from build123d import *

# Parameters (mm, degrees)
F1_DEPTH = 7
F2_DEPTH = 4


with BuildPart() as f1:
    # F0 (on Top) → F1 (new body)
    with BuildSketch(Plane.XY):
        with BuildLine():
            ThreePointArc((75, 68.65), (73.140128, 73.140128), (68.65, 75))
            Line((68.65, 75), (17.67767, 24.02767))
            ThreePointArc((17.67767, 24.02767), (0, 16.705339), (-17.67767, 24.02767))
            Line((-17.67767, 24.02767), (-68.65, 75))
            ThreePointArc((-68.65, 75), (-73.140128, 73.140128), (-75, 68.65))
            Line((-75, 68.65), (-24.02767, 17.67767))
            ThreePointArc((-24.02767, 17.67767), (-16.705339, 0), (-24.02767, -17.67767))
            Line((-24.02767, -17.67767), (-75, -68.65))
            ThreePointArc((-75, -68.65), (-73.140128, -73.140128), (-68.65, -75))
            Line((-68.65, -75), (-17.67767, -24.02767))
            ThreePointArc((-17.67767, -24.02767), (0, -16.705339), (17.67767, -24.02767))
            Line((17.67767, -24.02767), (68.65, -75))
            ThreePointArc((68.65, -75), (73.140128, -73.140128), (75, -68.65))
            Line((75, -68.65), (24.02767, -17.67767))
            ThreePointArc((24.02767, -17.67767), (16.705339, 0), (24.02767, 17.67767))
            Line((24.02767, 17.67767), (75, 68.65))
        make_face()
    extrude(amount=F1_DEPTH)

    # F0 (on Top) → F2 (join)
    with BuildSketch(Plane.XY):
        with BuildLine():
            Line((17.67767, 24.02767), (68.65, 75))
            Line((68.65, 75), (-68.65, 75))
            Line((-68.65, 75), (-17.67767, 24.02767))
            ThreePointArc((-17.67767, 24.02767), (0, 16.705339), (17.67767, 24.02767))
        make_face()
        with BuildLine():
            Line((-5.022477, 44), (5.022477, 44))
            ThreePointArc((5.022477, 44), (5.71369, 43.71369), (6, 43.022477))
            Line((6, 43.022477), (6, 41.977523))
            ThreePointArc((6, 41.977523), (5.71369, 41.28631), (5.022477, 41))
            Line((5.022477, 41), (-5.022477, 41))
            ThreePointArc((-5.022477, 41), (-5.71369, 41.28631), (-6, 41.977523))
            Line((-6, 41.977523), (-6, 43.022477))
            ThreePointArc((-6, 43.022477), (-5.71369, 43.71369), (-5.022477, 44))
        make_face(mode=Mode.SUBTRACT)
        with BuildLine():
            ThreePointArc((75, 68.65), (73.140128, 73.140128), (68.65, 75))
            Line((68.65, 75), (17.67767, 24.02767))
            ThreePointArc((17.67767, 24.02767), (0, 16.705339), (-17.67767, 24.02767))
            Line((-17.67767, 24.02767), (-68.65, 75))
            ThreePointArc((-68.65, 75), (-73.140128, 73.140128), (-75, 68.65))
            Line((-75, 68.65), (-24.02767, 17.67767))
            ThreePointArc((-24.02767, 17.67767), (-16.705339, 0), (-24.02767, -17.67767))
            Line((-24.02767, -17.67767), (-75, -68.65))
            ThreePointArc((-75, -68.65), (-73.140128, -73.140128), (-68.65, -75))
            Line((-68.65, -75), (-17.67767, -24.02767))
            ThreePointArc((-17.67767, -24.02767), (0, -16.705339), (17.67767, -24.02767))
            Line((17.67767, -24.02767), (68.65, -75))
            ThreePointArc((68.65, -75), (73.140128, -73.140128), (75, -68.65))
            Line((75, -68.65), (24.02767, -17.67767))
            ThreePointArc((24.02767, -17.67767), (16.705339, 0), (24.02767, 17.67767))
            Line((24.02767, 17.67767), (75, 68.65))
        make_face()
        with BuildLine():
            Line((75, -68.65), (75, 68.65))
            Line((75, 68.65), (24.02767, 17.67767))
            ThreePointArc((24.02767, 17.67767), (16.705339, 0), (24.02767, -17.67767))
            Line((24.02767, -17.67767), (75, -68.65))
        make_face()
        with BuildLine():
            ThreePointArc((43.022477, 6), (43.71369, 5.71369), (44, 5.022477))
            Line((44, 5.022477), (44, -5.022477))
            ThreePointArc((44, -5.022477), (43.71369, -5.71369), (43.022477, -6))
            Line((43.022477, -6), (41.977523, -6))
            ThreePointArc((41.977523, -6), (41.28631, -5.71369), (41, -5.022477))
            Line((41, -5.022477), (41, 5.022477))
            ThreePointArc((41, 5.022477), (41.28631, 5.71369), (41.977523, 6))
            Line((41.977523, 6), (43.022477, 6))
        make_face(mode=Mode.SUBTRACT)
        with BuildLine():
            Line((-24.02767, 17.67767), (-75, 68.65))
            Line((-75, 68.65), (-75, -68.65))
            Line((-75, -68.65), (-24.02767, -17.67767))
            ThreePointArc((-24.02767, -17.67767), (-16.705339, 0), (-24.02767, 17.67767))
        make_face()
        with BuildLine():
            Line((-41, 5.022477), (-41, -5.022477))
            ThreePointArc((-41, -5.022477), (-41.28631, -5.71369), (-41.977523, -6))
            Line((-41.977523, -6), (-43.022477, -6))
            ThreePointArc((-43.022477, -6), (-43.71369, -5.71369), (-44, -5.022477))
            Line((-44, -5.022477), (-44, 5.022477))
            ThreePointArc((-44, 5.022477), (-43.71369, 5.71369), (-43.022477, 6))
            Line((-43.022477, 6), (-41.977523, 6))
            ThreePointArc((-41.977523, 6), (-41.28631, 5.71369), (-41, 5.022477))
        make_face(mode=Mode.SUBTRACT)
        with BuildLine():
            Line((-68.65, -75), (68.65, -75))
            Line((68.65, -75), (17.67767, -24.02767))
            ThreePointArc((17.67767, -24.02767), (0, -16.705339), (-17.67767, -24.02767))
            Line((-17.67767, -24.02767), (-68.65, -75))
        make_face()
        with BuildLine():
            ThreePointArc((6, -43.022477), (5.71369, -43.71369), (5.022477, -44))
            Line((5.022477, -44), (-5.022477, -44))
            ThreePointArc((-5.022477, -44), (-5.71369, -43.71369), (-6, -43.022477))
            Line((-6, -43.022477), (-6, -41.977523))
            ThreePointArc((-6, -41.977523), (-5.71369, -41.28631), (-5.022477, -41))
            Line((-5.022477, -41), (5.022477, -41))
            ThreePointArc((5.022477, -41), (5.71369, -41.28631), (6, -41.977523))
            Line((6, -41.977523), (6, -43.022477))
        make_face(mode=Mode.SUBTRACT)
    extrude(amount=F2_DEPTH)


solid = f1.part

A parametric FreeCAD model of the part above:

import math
import FreeCAD as App
import Part
import Sketcher

doc = App.newDocument("Part")
body = doc.addObject("PartDesign::Body", "Body")

sketch1 = body.newObject("Sketcher::SketchObject", "Sketch")
sketch1.AttachmentSupport = (doc.getObject("XY_Plane"), [""])
sketch1.MapMode = "FlatFace"
sketch1.addGeometry([
    Part.ArcOfCircle(Part.Circle(App.Vector(69, 69, 0), App.Vector(0, 0, 1), 6), math.radians(0), math.radians(90)),
    Part.LineSegment(App.Vector(69, 75, 0), App.Vector(18, 24, 0)),
    Part.ArcOfCircle(Part.Circle(App.Vector(0, 42, 0), App.Vector(0, 0, 1), 25), math.radians(-135), math.radians(-45)),
    Part.LineSegment(App.Vector(-18, 24, 0), App.Vector(-69, 75, 0)),
    Part.ArcOfCircle(Part.Circle(App.Vector(-69, 69, 0), App.Vector(0, 0, 1), 6), math.radians(90), math.radians(180)),
    Part.LineSegment(App.Vector(-75, 69, 0), App.Vector(-24, 18, 0)),
    Part.ArcOfCircle(Part.Circle(App.Vector(-42, 0, 0), App.Vector(0, 0, 1), 25), math.radians(-45), math.radians(45)),
    Part.LineSegment(App.Vector(-24, -18, 0), App.Vector(-75, -69, 0)),
    Part.ArcOfCircle(Part.Circle(App.Vector(-69, -69, 0), App.Vector(0, 0, 1), 6), math.radians(-180), math.radians(-90)),
    Part.LineSegment(App.Vector(-69, -75, 0), App.Vector(-18, -24, 0)),
    Part.ArcOfCircle(Part.Circle(App.Vector(0, -42, 0), App.Vector(0, 0, 1), 25), math.radians(45), math.radians(135)),
    Part.LineSegment(App.Vector(18, -24, 0), App.Vector(69, -75, 0)),
    Part.ArcOfCircle(Part.Circle(App.Vector(69, -69, 0), App.Vector(0, 0, 1), 6), math.radians(-90), math.radians(0)),
    Part.LineSegment(App.Vector(75, -69, 0), App.Vector(24, -18, 0)),
    Part.ArcOfCircle(Part.Circle(App.Vector(42, 0, 0), App.Vector(0, 0, 1), 25), math.radians(135), math.radians(225)),
    Part.LineSegment(App.Vector(24, 18, 0), App.Vector(75, 69, 0)),
], False)
sketch1.addConstraint([
    Sketcher.Constraint("Coincident", 0, 2, 1, 1),
    Sketcher.Constraint("Tangent", 1, 2, 2, 2),
    Sketcher.Constraint("Tangent", 2, 1, 3, 1),
    Sketcher.Constraint("Coincident", 3, 2, 4, 1),
    Sketcher.Constraint("Coincident", 4, 2, 5, 1),
    Sketcher.Constraint("Tangent", 5, 2, 6, 2),
    Sketcher.Constraint("Tangent", 6, 1, 7, 1),
    Sketcher.Constraint("Coincident", 7, 2, 8, 1),
    Sketcher.Constraint("Coincident", 8, 2, 9, 1),
    Sketcher.Constraint("Tangent", 9, 2, 10, 2),
    Sketcher.Constraint("Tangent", 10, 1, 11, 1),
    Sketcher.Constraint("Coincident", 11, 2, 12, 1),
    Sketcher.Constraint("Coincident", 12, 2, 13, 1),
    Sketcher.Constraint("Tangent", 13, 2, 14, 2),
    Sketcher.Constraint("Tangent", 14, 1, 15, 1),
    Sketcher.Constraint("Coincident", 15, 2, 0, 1),
    Sketcher.Constraint("Equal", 0, 4),
    Sketcher.Constraint("Equal", 2, 6),
    Sketcher.Constraint("Equal", 4, 8),
    Sketcher.Constraint("Equal", 6, 10),
    Sketcher.Constraint("Equal", 8, 12),
    Sketcher.Constraint("Equal", 10, 14),
    Sketcher.Constraint("Symmetric", 0, 3, 8, 3, -1, 1),
    Sketcher.Constraint("Symmetric", 2, 3, 10, 3, -1, 1),
    Sketcher.Constraint("Symmetric", 4, 3, 12, 3, -1, 1),
    Sketcher.Constraint("Symmetric", 6, 3, 14, 3, -1, 1),
    Sketcher.Constraint("Symmetric", 0, 3, 4, 3, -2),
    Sketcher.Constraint("Symmetric", 1, 2, 2, 1, -2),
    Sketcher.Constraint("Symmetric", 6, 1, 13, 2, -2),
    Sketcher.Constraint("Perpendicular", 1, 3),
    Sketcher.Constraint("Parallel", 3, 5),
    Sketcher.Constraint("Perpendicular", 5, 7),
    Sketcher.Constraint("Parallel", 7, 9),
    Sketcher.Constraint("Perpendicular", 9, 11),
    Sketcher.Constraint("Perpendicular", 13, 15),
    Sketcher.Constraint("Horizontal", 0, 3, 4, 2),
    Sketcher.Constraint("Vertical", 12, 3, 0, 2),
    Sketcher.Constraint("Equal", 3, 5),
    Sketcher.Constraint("Radius", 2, 25.0),
    Sketcher.Constraint("Radius", 0, 6.35),
    Sketcher.Constraint("DistanceY", -1, 1, 0, 2, 75.0),
])
pad1 = body.newObject("PartDesign::Pad", "Pad")
pad1.Profile = sketch1
pad1.Length = 7

sketch2 = body.newObject("Sketcher::SketchObject", "Sketch001")
sketch2.AttachmentSupport = (doc.getObject("XY_Plane"), [""])
sketch2.MapMode = "FlatFace"
sketch2.addGeometry([
    Part.LineSegment(App.Vector(68.7, 75, 0), App.Vector(-68.7, 75, 0)),
    Part.ArcOfCircle(Part.Circle(App.Vector(-68.6, 68.6, 0), App.Vector(0, 0, 1), 6.4), math.radians(90), math.radians(180)),
    Part.LineSegment(App.Vector(-75, 68.7, 0), App.Vector(-75, -68.7, 0)),
    Part.ArcOfCircle(Part.Circle(App.Vector(-68.6, -68.6, 0), App.Vector(0, 0, 1), 6.4), math.radians(-180), math.radians(-90)),
    Part.LineSegment(App.Vector(-68.7, -75, 0), App.Vector(68.7, -75, 0)),
    Part.ArcOfCircle(Part.Circle(App.Vector(68.6, -68.6, 0), App.Vector(0, 0, 1), 6.4), math.radians(-90), math.radians(0)),
    Part.LineSegment(App.Vector(75, -68.7, 0), App.Vector(75, 68.7, 0)),
    Part.ArcOfCircle(Part.Circle(App.Vector(68.6, 68.6, 0), App.Vector(0, 0, 1), 6.4), math.radians(0), math.radians(90)),
    Part.LineSegment(App.Vector(6, -42, 0), App.Vector(6, -43, 0)),
    Part.ArcOfCircle(Part.Circle(App.Vector(5, -43, 0), App.Vector(0, 0, 1), 1), math.radians(-90), math.radians(0)),
    Part.LineSegment(App.Vector(5, -44, 0), App.Vector(-5, -44, 0)),
    Part.ArcOfCircle(Part.Circle(App.Vector(-5, -43, 0), App.Vector(0, 0, 1), 1), math.radians(-180), math.radians(-90)),
    Part.LineSegment(App.Vector(-6, -43, 0), App.Vector(-6, -42, 0)),
    Part.ArcOfCircle(Part.Circle(App.Vector(-5, -42, 0), App.Vector(0, 0, 1), 1), math.radians(90), math.radians(180)),
    Part.LineSegment(App.Vector(-5, -41, 0), App.Vector(5, -41, 0)),
    Part.ArcOfCircle(Part.Circle(App.Vector(5, -42, 0), App.Vector(0, 0, 1), 1), math.radians(0), math.radians(90)),
    Part.ArcOfCircle(Part.Circle(App.Vector(-42, 5, 0), App.Vector(0, 0, 1), 1), math.radians(0), math.radians(90)),
    Part.LineSegment(App.Vector(-41, 5, 0), App.Vector(-41, -5, 0)),
    Part.ArcOfCircle(Part.Circle(App.Vector(-42, -5, 0), App.Vector(0, 0, 1), 1), math.radians(-90), math.radians(0)),
    Part.LineSegment(App.Vector(-42, -6, 0), App.Vector(-43, -6, 0)),
    Part.ArcOfCircle(Part.Circle(App.Vector(-43, -5, 0), App.Vector(0, 0, 1), 1), math.radians(-180), math.radians(-90)),
    Part.LineSegment(App.Vector(-44, -5, 0), App.Vector(-44, 5, 0)),
    Part.ArcOfCircle(Part.Circle(App.Vector(-43, 5, 0), App.Vector(0, 0, 1), 1), math.radians(90), math.radians(180)),
    Part.LineSegment(App.Vector(-43, 6, 0), App.Vector(-42, 6, 0)),
    Part.LineSegment(App.Vector(42, 6, 0), App.Vector(43, 6, 0)),
    Part.ArcOfCircle(Part.Circle(App.Vector(43, 5, 0), App.Vector(0, 0, 1), 1), math.radians(0), math.radians(90)),
    Part.LineSegment(App.Vector(44, 5, 0), App.Vector(44, -5, 0)),
    Part.ArcOfCircle(Part.Circle(App.Vector(43, -5, 0), App.Vector(0, 0, 1), 1), math.radians(-90), math.radians(0)),
    Part.LineSegment(App.Vector(43, -6, 0), App.Vector(42, -6, 0)),
    Part.ArcOfCircle(Part.Circle(App.Vector(42, -5, 0), App.Vector(0, 0, 1), 1), math.radians(-180), math.radians(-90)),
    Part.LineSegment(App.Vector(41, -5, 0), App.Vector(41, 5, 0)),
    Part.ArcOfCircle(Part.Circle(App.Vector(42, 5, 0), App.Vector(0, 0, 1), 1), math.radians(90), math.radians(180)),
    Part.ArcOfCircle(Part.Circle(App.Vector(-5, 43, 0), App.Vector(0, 0, 1), 1), math.radians(90), math.radians(180)),
    Part.LineSegment(App.Vector(-5, 44, 0), App.Vector(5, 44, 0)),
    Part.ArcOfCircle(Part.Circle(App.Vector(5, 43, 0), App.Vector(0, 0, 1), 1), math.radians(0), math.radians(90)),
    Part.LineSegment(App.Vector(6, 43, 0), App.Vector(6, 42, 0)),
    Part.ArcOfCircle(Part.Circle(App.Vector(5, 42, 0), App.Vector(0, 0, 1), 1), math.radians(-90), math.radians(0)),
    Part.LineSegment(App.Vector(5, 41, 0), App.Vector(-5, 41, 0)),
    Part.ArcOfCircle(Part.Circle(App.Vector(-5, 42, 0), App.Vector(0, 0, 1), 1), math.radians(-180), math.radians(-90)),
    Part.LineSegment(App.Vector(-6, 42, 0), App.Vector(-6, 43, 0)),
], False)
sketch2.addConstraint([
    Sketcher.Constraint("Tangent", 0, 2, 1, 1),
    Sketcher.Constraint("Tangent", 1, 2, 2, 1),
    Sketcher.Constraint("Tangent", 2, 2, 3, 1),
    Sketcher.Constraint("Tangent", 3, 2, 4, 1),
    Sketcher.Constraint("Tangent", 4, 2, 5, 1),
    Sketcher.Constraint("Tangent", 5, 2, 6, 1),
    Sketcher.Constraint("Tangent", 6, 2, 7, 1),
    Sketcher.Constraint("Tangent", 7, 2, 0, 1),
    Sketcher.Constraint("Tangent", 8, 2, 9, 2),
    Sketcher.Constraint("Tangent", 9, 1, 10, 1),
    Sketcher.Constraint("Tangent", 10, 2, 11, 2),
    Sketcher.Constraint("Tangent", 11, 1, 12, 1),
    Sketcher.Constraint("Tangent", 12, 2, 13, 2),
    Sketcher.Constraint("Tangent", 13, 1, 14, 1),
    Sketcher.Constraint("Tangent", 14, 2, 15, 2),
    Sketcher.Constraint("Tangent", 15, 1, 8, 1),
    Sketcher.Constraint("Tangent", 16, 1, 17, 1),
    Sketcher.Constraint("Tangent", 17, 2, 18, 2),
    Sketcher.Constraint("Tangent", 18, 1, 19, 1),
    Sketcher.Constraint("Tangent", 19, 2, 20, 2),
    Sketcher.Constraint("Tangent", 20, 1, 21, 1),
    Sketcher.Constraint("Tangent", 21, 2, 22, 2),
    Sketcher.Constraint("Tangent", 22, 1, 23, 1),
    Sketcher.Constraint("Tangent", 23, 2, 16, 2),
    Sketcher.Constraint("Tangent", 24, 2, 25, 2),
    Sketcher.Constraint("Tangent", 25, 1, 26, 1),
    Sketcher.Constraint("Tangent", 26, 2, 27, 2),
    Sketcher.Constraint("Tangent", 27, 1, 28, 1),
    Sketcher.Constraint("Tangent", 28, 2, 29, 2),
    Sketcher.Constraint("Tangent", 29, 1, 30, 1),
    Sketcher.Constraint("Tangent", 30, 2, 31, 2),
    Sketcher.Constraint("Tangent", 31, 1, 24, 1),
    Sketcher.Constraint("Tangent", 32, 1, 33, 1),
    Sketcher.Constraint("Tangent", 33, 2, 34, 2),
    Sketcher.Constraint("Tangent", 34, 1, 35, 1),
    Sketcher.Constraint("Tangent", 35, 2, 36, 2),
    Sketcher.Constraint("Tangent", 36, 1, 37, 1),
    Sketcher.Constraint("Tangent", 37, 2, 38, 2),
    Sketcher.Constraint("Tangent", 38, 1, 39, 1),
    Sketcher.Constraint("Tangent", 39, 2, 32, 2),
    Sketcher.Constraint("Horizontal", 0),
    Sketcher.Constraint("Vertical", 2),
    Sketcher.Constraint("Horizontal", 4),
    Sketcher.Constraint("Vertical", 6),
    Sketcher.Constraint("Vertical", 8),
    Sketcher.Constraint("Horizontal", 10),
    Sketcher.Constraint("Vertical", 12),
    Sketcher.Constraint("Horizontal", 14),
    Sketcher.Constraint("Vertical", 17),
    Sketcher.Constraint("Horizontal", 19),
    Sketcher.Constraint("Vertical", 21),
    Sketcher.Constraint("Horizontal", 23),
    Sketcher.Constraint("Horizontal", 24),
    Sketcher.Constraint("Vertical", 26),
    Sketcher.Constraint("Horizontal", 28),
    Sketcher.Constraint("Vertical", 30),
    Sketcher.Constraint("Horizontal", 33),
    Sketcher.Constraint("Vertical", 35),
    Sketcher.Constraint("Horizontal", 37),
    Sketcher.Constraint("Vertical", 39),
    Sketcher.Constraint("Equal", 1, 3),
    Sketcher.Constraint("Equal", 3, 5),
    Sketcher.Constraint("Equal", 5, 7),
    Sketcher.Constraint("Equal", 9, 11),
    Sketcher.Constraint("Equal", 11, 13),
    Sketcher.Constraint("Equal", 13, 15),
    Sketcher.Constraint("Equal", 15, 16),
    Sketcher.Constraint("Equal", 16, 18),
    Sketcher.Constraint("Equal", 18, 20),
    Sketcher.Constraint("Equal", 20, 22),
    Sketcher.Constraint("Equal", 22, 25),
    Sketcher.Constraint("Equal", 25, 27),
    Sketcher.Constraint("Equal", 27, 29),
    Sketcher.Constraint("Equal", 29, 31),
    Sketcher.Constraint("Equal", 31, 32),
    Sketcher.Constraint("Equal", 32, 34),
    Sketcher.Constraint("Equal", 34, 36),
    Sketcher.Constraint("Equal", 36, 38),
    Sketcher.Constraint("Symmetric", 1, 3, 5, 3, -1, 1),
    Sketcher.Constraint("Symmetric", 20, 3, 25, 3, -1, 1),
    Sketcher.Constraint("Symmetric", 16, 3, 29, 3, -1, 1),
    Sketcher.Constraint("Symmetric", 9, 3, 32, 3, -1, 1),
    Sketcher.Constraint("Symmetric", 13, 3, 36, 3, -1, 1),
    Sketcher.Constraint("Horizontal", 22, 3, 25, 3),
    Sketcher.Constraint("Vertical", 13, 3, 32, 3),
    Sketcher.Constraint("Equal", 4, 2),
    Sketcher.Constraint("Equal", 28, 8),
    Sketcher.Constraint("Equal", 37, 17),
    Sketcher.Constraint("Radius", 1, 6.35),
    Sketcher.Constraint("DistanceX", 0, 2, 0, 1, 137.3),
    Sketcher.Constraint("DistanceX", -1, 1, 8, 2, 6.0),
    Sketcher.Constraint("DistanceY", 9, 1, -1, 1, 44.0),
    Sketcher.Constraint("DistanceY", 13, 1, -1, 1, 41.0),
    Sketcher.Constraint("DistanceX", 16, 1, -1, 1, 41.0),
    Sketcher.Constraint("Radius", 9, 0.977523),
])
pad2 = body.newObject("PartDesign::Pad", "Pad001")
pad2.Profile = sketch2
pad2.Length = 4

doc.recompute()
